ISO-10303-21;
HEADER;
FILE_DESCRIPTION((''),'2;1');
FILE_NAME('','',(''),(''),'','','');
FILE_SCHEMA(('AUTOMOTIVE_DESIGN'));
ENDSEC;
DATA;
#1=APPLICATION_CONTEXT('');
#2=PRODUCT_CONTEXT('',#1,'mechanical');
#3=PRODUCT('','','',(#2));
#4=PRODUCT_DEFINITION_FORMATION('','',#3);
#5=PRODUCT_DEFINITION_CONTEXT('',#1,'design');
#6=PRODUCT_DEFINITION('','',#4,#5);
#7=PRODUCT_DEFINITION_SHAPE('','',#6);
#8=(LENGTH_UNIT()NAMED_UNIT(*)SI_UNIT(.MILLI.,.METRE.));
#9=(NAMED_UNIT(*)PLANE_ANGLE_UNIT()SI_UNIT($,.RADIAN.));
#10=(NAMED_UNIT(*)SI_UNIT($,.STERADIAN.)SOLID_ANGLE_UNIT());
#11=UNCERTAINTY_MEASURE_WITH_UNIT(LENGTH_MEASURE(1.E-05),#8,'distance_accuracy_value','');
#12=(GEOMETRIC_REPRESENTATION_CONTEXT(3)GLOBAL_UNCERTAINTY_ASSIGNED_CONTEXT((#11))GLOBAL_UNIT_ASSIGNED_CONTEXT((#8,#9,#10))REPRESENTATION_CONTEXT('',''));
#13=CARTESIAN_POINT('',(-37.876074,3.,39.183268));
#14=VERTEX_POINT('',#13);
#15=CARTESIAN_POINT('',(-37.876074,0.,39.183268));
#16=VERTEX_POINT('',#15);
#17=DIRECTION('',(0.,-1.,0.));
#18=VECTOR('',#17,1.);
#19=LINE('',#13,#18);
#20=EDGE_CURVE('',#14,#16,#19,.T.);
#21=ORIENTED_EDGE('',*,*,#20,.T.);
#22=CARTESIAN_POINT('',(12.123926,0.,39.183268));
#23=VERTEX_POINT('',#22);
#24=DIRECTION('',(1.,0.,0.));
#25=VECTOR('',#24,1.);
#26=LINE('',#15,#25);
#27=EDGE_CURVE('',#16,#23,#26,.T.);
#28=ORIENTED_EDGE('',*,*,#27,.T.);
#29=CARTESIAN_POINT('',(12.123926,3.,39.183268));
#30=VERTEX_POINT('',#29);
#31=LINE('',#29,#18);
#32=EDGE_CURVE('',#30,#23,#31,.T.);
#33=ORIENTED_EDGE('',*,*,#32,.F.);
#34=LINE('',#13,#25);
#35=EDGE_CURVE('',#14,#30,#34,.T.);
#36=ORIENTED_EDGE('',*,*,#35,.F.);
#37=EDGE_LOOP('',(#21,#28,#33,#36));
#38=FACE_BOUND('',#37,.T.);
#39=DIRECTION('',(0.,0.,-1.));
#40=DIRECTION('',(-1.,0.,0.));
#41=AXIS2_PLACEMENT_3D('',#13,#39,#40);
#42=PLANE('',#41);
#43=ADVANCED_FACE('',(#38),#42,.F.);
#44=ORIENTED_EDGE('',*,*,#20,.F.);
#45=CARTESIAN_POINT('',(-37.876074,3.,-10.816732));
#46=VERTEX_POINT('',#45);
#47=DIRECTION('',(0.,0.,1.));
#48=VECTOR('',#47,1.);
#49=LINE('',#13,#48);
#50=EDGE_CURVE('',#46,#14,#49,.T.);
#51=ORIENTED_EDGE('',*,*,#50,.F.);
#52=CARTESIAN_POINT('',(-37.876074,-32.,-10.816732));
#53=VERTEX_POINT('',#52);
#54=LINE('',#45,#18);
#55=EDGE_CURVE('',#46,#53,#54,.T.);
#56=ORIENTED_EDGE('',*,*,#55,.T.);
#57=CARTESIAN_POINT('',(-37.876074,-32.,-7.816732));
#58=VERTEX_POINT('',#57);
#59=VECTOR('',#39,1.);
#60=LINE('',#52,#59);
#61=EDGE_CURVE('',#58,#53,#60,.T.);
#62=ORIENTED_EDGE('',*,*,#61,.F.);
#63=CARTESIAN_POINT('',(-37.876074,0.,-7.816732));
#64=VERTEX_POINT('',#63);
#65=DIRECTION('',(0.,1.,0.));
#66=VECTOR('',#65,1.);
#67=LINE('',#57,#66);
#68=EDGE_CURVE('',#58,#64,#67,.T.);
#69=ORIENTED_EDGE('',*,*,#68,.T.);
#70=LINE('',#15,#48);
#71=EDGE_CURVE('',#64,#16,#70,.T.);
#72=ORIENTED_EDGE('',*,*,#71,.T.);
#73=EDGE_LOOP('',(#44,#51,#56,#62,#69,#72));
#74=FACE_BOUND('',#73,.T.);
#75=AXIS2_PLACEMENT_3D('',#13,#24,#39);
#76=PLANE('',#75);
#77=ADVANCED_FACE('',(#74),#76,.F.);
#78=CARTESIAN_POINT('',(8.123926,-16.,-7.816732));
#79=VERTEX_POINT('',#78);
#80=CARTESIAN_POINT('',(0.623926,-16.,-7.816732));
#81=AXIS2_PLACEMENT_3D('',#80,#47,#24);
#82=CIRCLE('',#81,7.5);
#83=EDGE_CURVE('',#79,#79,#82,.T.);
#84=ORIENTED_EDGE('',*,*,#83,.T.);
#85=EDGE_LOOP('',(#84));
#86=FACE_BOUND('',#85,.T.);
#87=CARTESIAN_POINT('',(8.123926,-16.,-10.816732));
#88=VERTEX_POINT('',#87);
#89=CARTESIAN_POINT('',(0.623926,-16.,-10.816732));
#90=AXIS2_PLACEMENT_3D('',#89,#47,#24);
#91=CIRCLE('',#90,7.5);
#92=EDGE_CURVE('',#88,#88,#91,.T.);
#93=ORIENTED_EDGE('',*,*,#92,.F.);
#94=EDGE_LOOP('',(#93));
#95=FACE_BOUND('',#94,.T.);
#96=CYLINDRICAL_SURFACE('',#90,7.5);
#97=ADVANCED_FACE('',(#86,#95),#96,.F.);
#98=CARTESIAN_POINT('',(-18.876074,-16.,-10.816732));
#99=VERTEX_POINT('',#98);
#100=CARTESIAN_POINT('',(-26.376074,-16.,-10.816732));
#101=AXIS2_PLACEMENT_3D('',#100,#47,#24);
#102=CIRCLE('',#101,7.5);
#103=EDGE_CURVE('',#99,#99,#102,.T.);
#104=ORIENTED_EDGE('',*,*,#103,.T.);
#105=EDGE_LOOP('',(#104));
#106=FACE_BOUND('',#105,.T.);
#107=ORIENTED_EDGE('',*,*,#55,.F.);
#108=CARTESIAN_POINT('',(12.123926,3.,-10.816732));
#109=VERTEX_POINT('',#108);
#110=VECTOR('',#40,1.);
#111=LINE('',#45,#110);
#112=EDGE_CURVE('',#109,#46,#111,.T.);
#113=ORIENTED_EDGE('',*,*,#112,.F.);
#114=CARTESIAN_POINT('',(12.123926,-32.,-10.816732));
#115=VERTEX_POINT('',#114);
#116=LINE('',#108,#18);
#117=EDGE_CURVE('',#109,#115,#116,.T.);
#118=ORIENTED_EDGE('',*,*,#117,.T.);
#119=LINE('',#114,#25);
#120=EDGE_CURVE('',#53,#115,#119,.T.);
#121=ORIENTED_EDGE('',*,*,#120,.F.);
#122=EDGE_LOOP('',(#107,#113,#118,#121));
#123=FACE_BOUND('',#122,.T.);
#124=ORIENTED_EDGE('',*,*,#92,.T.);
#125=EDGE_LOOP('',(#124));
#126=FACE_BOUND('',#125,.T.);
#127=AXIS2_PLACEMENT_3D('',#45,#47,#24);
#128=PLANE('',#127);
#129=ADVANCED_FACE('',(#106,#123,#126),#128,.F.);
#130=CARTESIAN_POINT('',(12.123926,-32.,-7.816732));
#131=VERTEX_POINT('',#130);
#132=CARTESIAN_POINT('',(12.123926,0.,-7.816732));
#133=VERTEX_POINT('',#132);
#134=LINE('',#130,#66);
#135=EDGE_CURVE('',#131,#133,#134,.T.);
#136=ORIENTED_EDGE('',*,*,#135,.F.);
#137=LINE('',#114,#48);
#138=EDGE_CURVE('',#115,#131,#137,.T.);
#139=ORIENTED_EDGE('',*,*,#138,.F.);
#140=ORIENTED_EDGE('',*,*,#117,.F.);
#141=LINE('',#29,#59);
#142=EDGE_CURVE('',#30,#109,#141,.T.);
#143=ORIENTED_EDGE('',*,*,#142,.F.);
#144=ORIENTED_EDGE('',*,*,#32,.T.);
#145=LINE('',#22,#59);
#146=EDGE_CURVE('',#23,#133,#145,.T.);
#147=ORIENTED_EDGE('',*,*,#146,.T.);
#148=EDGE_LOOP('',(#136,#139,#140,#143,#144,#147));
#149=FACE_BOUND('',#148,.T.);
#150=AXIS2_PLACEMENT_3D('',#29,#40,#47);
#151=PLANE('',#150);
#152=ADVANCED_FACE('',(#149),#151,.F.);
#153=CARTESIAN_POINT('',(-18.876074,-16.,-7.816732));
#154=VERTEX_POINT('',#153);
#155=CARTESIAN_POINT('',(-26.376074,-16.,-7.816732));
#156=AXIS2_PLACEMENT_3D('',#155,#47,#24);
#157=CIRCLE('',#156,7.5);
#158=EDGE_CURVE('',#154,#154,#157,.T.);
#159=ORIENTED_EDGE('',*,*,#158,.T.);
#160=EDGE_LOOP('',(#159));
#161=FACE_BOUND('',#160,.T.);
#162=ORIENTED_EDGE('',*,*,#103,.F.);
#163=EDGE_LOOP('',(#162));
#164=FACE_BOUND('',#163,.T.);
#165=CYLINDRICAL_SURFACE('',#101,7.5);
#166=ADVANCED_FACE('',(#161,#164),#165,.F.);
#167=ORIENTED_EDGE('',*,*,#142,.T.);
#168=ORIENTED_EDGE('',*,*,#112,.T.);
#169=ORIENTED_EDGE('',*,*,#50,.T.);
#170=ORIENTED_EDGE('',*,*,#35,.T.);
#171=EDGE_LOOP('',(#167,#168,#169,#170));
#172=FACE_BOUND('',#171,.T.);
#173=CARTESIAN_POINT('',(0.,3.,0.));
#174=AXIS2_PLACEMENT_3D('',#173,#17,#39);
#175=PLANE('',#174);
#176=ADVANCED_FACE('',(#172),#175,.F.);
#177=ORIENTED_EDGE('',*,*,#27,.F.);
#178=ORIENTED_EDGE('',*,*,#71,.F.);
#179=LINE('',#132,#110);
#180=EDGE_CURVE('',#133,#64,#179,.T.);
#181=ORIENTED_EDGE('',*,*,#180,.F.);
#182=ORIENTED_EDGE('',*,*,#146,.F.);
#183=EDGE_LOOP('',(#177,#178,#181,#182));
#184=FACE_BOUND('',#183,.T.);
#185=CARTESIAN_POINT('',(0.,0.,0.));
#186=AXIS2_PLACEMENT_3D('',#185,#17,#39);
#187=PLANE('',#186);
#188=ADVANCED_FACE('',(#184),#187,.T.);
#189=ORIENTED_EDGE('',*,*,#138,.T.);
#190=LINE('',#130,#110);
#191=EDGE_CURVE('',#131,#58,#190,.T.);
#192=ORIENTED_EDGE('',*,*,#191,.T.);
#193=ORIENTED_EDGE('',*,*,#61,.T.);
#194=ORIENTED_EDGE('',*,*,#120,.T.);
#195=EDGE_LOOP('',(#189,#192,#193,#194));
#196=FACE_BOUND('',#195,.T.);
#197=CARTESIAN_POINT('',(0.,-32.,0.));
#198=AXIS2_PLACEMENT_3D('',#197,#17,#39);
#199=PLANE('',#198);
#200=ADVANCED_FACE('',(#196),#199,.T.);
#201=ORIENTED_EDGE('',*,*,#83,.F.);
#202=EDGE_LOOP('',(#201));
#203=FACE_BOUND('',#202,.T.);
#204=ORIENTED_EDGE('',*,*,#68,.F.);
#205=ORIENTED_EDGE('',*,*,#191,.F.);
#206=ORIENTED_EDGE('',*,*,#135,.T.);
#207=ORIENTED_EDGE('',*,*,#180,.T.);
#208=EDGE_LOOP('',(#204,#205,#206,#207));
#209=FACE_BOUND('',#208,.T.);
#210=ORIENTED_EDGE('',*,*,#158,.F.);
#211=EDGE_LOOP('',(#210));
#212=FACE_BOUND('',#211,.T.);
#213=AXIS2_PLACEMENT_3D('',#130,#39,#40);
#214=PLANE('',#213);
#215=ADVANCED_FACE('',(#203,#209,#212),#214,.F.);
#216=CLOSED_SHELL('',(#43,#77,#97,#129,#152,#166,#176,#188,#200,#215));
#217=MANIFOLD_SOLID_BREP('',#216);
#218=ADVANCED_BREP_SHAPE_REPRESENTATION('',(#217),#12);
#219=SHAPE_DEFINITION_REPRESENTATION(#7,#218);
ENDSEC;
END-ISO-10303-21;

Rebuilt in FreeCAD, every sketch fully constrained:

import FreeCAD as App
import Part
import Sketcher
from FreeCAD import Vector


def add_polygon(sketch, points):
    """Adds a closed chain of lines whose ends are joined by coincident constraints."""
    first, n = sketch.GeometryCount, len(points)
    for a, b in zip(points, points[1:] + points[:1]):
        sketch.addGeometry(Part.LineSegment(App.Vector(*a, 0), App.Vector(*b, 0)), False)
    for i in range(n):
        sketch.addConstraint(Sketcher.Constraint("Coincident", first + i, 2, first + (i + 1) % n, 1))

doc = App.newDocument("Part")
body = doc.addObject("PartDesign::Body", "Body")

# Sketch on XZ plane
sketch1 = body.newObject("Sketcher::SketchObject", "Sketch")
sketch1.AttachmentSupport = (doc.getObject("XZ_Plane"), [""])
sketch1.MapMode = "FlatFace"
add_polygon(sketch1, [(-38, -11), (-38, 39), (12, 39), (12, -11)])  # lines 0-3
sketch1.addConstraint([
    Sketcher.Constraint("Vertical", 0),
    Sketcher.Constraint("Horizontal", 1),
    Sketcher.Constraint("Vertical", 2),
    Sketcher.Constraint("Horizontal", 3),
    Sketcher.Constraint("Equal", 3, 0),
    Sketcher.Constraint("DistanceX", 1, 1, 1, 2, 50.0),
    Sketcher.Constraint("DistanceX", 0, 2, -1, 1, 37.876074),
    Sketcher.Constraint("DistanceY", -1, 1, 0, 2, 39.183268),
])
pad1 = body.newObject("PartDesign::Pad", "Pad")
pad1.Profile = sketch1
pad1.Length = 3
pad1.Reversed = True

# Sketch on XZ plane
sketch2 = body.newObject("Sketcher::SketchObject", "Sketch001")
sketch2.AttachmentSupport = (doc.getObject("XZ_Plane"), [""])
sketch2.MapMode = "FlatFace"
add_polygon(sketch2, [(12.1, -10.8), (12.1, -7.8), (-37.9, -7.8), (-37.9, -10.8)])  # lines 0-3
sketch2.addConstraint([
    Sketcher.Constraint("Vertical", 0),
    Sketcher.Constraint("Horizontal", 1),
    Sketcher.Constraint("Vertical", 2),
    Sketcher.Constraint("Horizontal", 3),
    Sketcher.Constraint("DistanceX", 1, 2, 1, 1, 50.0),
    Sketcher.Constraint("DistanceY", 0, 1, 0, 2, 3.0),
    Sketcher.Constraint("DistanceX", -1, 1, 0, 2, 12.123926),
    Sketcher.Constraint("DistanceY", 0, 2, -1, 1, 7.816732),
])
pad2 = body.newObject("PartDesign::Pad", "Pad001")
pad2.Profile = sketch2
pad2.Length = 32

# Sketch on XY plane
sketch3 = body.newObject("Sketcher::SketchObject", "Sketch002")
sketch3.AttachmentSupport = (doc.getObject("XY_Plane"), [""])
sketch3.MapMode = "FlatFace"
sketch3.AttachmentOffset = App.Placement(Vector(0, 0, -7.816732), App.Rotation())
sketch3.addGeometry([
    Part.Circle(Vector(-26, -16, 0), Vector(0, 0, 1), 8),
    Part.Circle(Vector(1, -16, 0), Vector(0, 0, 1), 8),
], False)
sketch3.addConstraint([
    Sketcher.Constraint("Equal", 0, 1),
    Sketcher.Constraint("Horizontal", 0, 3, 1, 3),
    Sketcher.Constraint("Diameter", 0, 15.0),
    Sketcher.Constraint("DistanceY", 0, 3, -1, 1, 16.0),
    Sketcher.Constraint("DistanceX", 0, 3, 1, 3, 27.0),
    Sketcher.Constraint("DistanceX", 0, 3, -1, 1, 26.376074),
])
pocket1 = body.newObject("PartDesign::Pocket", "Pocket")
pocket1.Profile = sketch3
pocket1.Type = "ThroughAll"

doc.recompute()
